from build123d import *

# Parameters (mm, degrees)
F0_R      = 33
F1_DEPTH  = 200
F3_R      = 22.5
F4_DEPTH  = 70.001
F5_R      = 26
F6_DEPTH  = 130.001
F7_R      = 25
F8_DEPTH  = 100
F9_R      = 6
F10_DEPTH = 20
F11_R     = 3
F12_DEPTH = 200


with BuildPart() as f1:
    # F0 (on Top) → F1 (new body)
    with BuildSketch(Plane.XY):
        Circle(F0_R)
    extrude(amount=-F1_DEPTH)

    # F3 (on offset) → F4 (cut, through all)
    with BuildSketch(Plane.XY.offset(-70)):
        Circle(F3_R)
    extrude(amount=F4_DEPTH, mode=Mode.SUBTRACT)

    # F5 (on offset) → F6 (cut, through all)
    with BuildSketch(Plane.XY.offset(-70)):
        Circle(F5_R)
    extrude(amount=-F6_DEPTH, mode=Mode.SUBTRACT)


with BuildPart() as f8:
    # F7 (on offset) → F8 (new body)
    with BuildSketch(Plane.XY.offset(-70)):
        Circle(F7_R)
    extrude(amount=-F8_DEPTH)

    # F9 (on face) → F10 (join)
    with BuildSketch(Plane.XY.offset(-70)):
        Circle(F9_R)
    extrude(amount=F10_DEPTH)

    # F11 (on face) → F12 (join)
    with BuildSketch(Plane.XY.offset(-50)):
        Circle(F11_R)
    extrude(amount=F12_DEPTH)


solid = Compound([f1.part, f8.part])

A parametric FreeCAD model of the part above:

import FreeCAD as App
import Part
import Sketcher
from FreeCAD import Vector

doc = App.newDocument("Part")
body = doc.addObject("PartDesign::Body", "Body")

sketch1 = doc.addObject("Sketcher::SketchObject", "Sketch")
body.addObject(sketch1)
sketch1.AttachmentSupport = (doc.XY_Plane, [""])
sketch1.MapMode = "FlatFace"
sketch1.addGeometry(Part.Circle(Vector(0, 0, 0), Vector(0, 0, 1), 33), False)
sketch1.addConstraint(Sketcher.Constraint("Coincident", 0, 3, -1, 1))
sketch1.addConstraint(Sketcher.Constraint("Diameter", 0, 66.0))
pad1 = doc.addObject("PartDesign::Pad", "Pad")
body.addObject(pad1)
pad1.Profile = sketch1
pad1.Length = 200
pad1.Reversed = True

sketch2 = doc.addObject("Sketcher::SketchObject", "Sketch001")
body.addObject(sketch2)
sketch2.AttachmentSupport = (doc.XY_Plane, [""])
sketch2.MapMode = "FlatFace"
sketch2.AttachmentOffset = App.Placement(Vector(0, 0, -70), App.Rotation())
sketch2.addGeometry(Part.Circle(Vector(0, 0, 0), Vector(0, 0, 1), 22), False)
sketch2.addConstraint(Sketcher.Constraint("Coincident", 0, 3, -1, 1))
sketch2.addConstraint(Sketcher.Constraint("Diameter", 0, 45.0))
pocket1 = doc.addObject("PartDesign::Pocket", "Pocket")
body.addObject(pocket1)
pocket1.Profile = sketch2
pocket1.Type = "ThroughAll"
pocket1.Reversed = True

sketch3 = doc.addObject("Sketcher::SketchObject", "Sketch002")
body.addObject(sketch3)
sketch3.AttachmentSupport = (doc.XY_Plane, [""])
sketch3.MapMode = "FlatFace"
sketch3.AttachmentOffset = App.Placement(Vector(0, 0, -70), App.Rotation())
sketch3.addGeometry(Part.Circle(Vector(0, 0, 0), Vector(0, 0, 1), 26), False)
sketch3.addConstraint(Sketcher.Constraint("Coincident", 0, 3, -1, 1))
sketch3.addConstraint(Sketcher.Constraint("Diameter", 0, 52.0))
pocket2 = doc.addObject("PartDesign::Pocket", "Pocket001")
body.addObject(pocket2)
pocket2.Profile = sketch3
pocket2.Type = "ThroughAll"
body2 = doc.addObject("PartDesign::Body", "Body001")

sketch4 = doc.addObject("Sketcher::SketchObject", "Sketch003")
body2.addObject(sketch4)
sketch4.AttachmentSupport = (doc.getObject("XY_Plane001"), [""])
sketch4.MapMode = "FlatFace"
sketch4.AttachmentOffset = App.Placement(Vector(0, 0, -70), App.Rotation())
sketch4.addGeometry(Part.Circle(Vector(0, 0, 0), Vector(0, 0, 1), 25), False)
sketch4.addConstraint(Sketcher.Constraint("Coincident", 0, 3, -1, 1))
sketch4.addConstraint(Sketcher.Constraint("Diameter", 0, 50.0))
pad2 = doc.addObject("PartDesign::Pad", "Pad001")
body2.addObject(pad2)
pad2.Profile = sketch4
pad2.Length = 100
pad2.Reversed = True

sketch5 = doc.addObject("Sketcher::SketchObject", "Sketch004")
body2.addObject(sketch5)
sketch5.AttachmentSupport = (doc.getObject("XY_Plane001"), [""])
sketch5.MapMode = "FlatFace"
sketch5.AttachmentOffset = App.Placement(Vector(0, 0, -70), App.Rotation())
sketch5.addGeometry(Part.Circle(Vector(0, 0, 0), Vector(0, 0, 1), 6), False)
sketch5.addConstraint(Sketcher.Constraint("Coincident", 0, 3, -1, 1))
sketch5.addConstraint(Sketcher.Constraint("Diameter", 0, 12.0))
pad3 = doc.addObject("PartDesign::Pad", "Pad002")
body2.addObject(pad3)
pad3.Profile = sketch5
pad3.Length = 20

sketch6 = doc.addObject("Sketcher::SketchObject", "Sketch005")
body2.addObject(sketch6)
sketch6.AttachmentSupport = (doc.getObject("XY_Plane001"), [""])
sketch6.MapMode = "FlatFace"
sketch6.AttachmentOffset = App.Placement(Vector(0, 0, -50), App.Rotation())
sketch6.addGeometry(Part.Circle(Vector(0, 0, 0), Vector(0, 0, 1), 3), False)
sketch6.addConstraint(Sketcher.Constraint("Coincident", 0, 3, -1, 1))
sketch6.addConstraint(Sketcher.Constraint("Diameter", 0, 6.0))
pad4 = doc.addObject("PartDesign::Pad", "Pad003")
body2.addObject(pad4)
pad4.Profile = sketch6
pad4.Length = 200

doc.recompute()
